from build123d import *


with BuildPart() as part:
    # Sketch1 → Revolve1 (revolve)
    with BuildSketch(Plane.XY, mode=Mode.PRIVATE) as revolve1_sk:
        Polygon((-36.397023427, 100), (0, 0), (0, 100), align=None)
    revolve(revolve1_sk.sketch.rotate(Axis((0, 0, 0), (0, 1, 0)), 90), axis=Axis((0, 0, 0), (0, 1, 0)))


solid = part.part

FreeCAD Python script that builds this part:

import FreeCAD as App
import Part
import Sketcher

V = App.Vector
Q = App.Units.Quantity

doc = App.newDocument("Part")
params = doc.addObject("Spreadsheet::Sheet", "Params")
for row, (alias, value) in enumerate([
    ("sketch1_height", "100 mm"),
    ("revolution_angle", "360 deg"),
], start=1):
    params.set(f"A{row}", alias)
    params.set(f"B{row}", "=" + value)
    params.setAlias(f"B{row}", alias)

body = doc.addObject("PartDesign::Body", "Body")

# Sketch on XY plane
sketch1 = body.newObject("Sketcher::SketchObject", "Sketch")
sketch1.AttachmentSupport = (doc.getObject("XY_Plane"), [""])
sketch1.MapMode = "FlatFace"
sketch1.addGeometry(Part.LineSegment(V(-36.397023, 100, 0), V(0, 0, 0)), False)
sketch1.addGeometry(Part.LineSegment(V(0, 0, 0), V(0, 100, 0)), False)
sketch1.addGeometry(Part.LineSegment(V(0, 100, 0), V(-36.397023, 100, 0)), False)
sketch1.addConstraint(Sketcher.Constraint("Coincident", 0, 2, 1, 1))
sketch1.addConstraint(Sketcher.Constraint("Coincident", 1, 2, 2, 1))
sketch1.addConstraint(Sketcher.Constraint("Coincident", 2, 2, 0, 1))
sketch1.addConstraint(Sketcher.Constraint("Vertical", 1))
sketch1.addConstraint(Sketcher.Constraint("Horizontal", 2))
sketch1.addConstraint(Sketcher.Constraint("Coincident", 0, 2, -1, 1))
sketch1.addConstraint(Sketcher.Constraint("DistanceY", 1, 1, 1, 2, Q("100 mm")))
sketch1.addConstraint(Sketcher.Constraint("Angle", 0, Q("-70 deg")))
sketch1.setExpression("Constraints[6]", "Params.sketch1_height")
revolution = body.newObject("PartDesign::Revolution", "Revolution")
revolution.Profile = sketch1
revolution.ReferenceAxis = (sketch1, ["V_Axis"])
revolution.setExpression("Angle", "Params.revolution_angle")

doc.recompute()
